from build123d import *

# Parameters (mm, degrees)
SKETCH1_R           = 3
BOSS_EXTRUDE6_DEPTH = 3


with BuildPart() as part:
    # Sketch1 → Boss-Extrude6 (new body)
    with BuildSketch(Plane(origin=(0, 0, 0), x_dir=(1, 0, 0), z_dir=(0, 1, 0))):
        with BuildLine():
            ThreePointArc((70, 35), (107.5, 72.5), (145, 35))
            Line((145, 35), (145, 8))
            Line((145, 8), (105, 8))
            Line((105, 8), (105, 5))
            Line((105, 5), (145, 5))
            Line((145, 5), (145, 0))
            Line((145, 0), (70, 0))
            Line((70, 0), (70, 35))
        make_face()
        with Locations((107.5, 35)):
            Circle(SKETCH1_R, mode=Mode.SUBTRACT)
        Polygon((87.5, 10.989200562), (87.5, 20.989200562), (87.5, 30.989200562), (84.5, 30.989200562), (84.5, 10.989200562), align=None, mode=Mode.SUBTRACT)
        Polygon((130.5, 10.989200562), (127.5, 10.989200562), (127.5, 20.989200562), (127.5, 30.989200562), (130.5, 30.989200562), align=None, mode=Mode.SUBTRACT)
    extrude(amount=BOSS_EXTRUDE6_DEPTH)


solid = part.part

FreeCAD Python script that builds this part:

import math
import FreeCAD as App
import Part
import Sketcher
from FreeCAD import Vector


def add_polygon(sketch, points):
    """Adds a closed chain of lines whose ends are joined by coincident constraints."""
    first, n = sketch.GeometryCount, len(points)
    for a, b in zip(points, points[1:] + points[:1]):
        sketch.addGeometry(Part.LineSegment(App.Vector(*a, 0), App.Vector(*b, 0)), False)
    for i in range(n):
        sketch.addConstraint(Sketcher.Constraint("Coincident", first + i, 2, first + (i + 1) % n, 1))

doc = App.newDocument("Part")
body = doc.addObject("PartDesign::Body", "Body")

sketch1 = body.newObject("Sketcher::SketchObject", "Sketch")
sketch1.AttachmentSupport = (doc.getObject("XZ_Plane"), [""])
sketch1.MapMode = "FlatFace"
sketch1.addGeometry(Part.ArcOfCircle(Part.Circle(Vector(107.5, -35, 0), Vector(0, 0, 1), 37.5), math.radians(180), math.radians(360)), False)
sketch1.addGeometry(Part.LineSegment(Vector(70, -35, 0), Vector(70, 0, 0)), False)
sketch1.addGeometry(Part.LineSegment(Vector(70, 0, 0), Vector(145, 0, 0)), False)
sketch1.addGeometry(Part.LineSegment(Vector(145, 0, 0), Vector(145, -5, 0)), False)
sketch1.addGeometry(Part.LineSegment(Vector(145, -5, 0), Vector(105, -5, 0)), False)
sketch1.addGeometry(Part.LineSegment(Vector(105, -5, 0), Vector(105, -8, 0)), False)
sketch1.addGeometry(Part.LineSegment(Vector(105, -8, 0), Vector(145, -8, 0)), False)
sketch1.addGeometry(Part.LineSegment(Vector(145, -8, 0), Vector(145, -35, 0)), False)
add_polygon(sketch1, [(130.5, -11), (127.5, -11), (127.5, -31), (130.5, -31)])
add_polygon(sketch1, [(87.5, -11), (84.5, -11), (84.5, -31), (87.5, -31)])
sketch1.addGeometry(Part.Circle(Vector(107.5, -35, 0), Vector(0, 0, 1), 3), False)
sketch1.addConstraint([
    Sketcher.Constraint("Tangent", 0, 1, 1, 1),
    Sketcher.Constraint("Coincident", 1, 2, 2, 1),
    Sketcher.Constraint("Coincident", 2, 2, 3, 1),
    Sketcher.Constraint("Coincident", 3, 2, 4, 1),
    Sketcher.Constraint("Coincident", 4, 2, 5, 1),
    Sketcher.Constraint("Coincident", 5, 2, 6, 1),
    Sketcher.Constraint("Coincident", 6, 2, 7, 1),
    Sketcher.Constraint("Tangent", 7, 2, 0, 2),
    Sketcher.Constraint("Vertical", 1),
    Sketcher.Constraint("Horizontal", 2),
    Sketcher.Constraint("Vertical", 3),
    Sketcher.Constraint("Horizontal", 4),
    Sketcher.Constraint("Vertical", 5),
    Sketcher.Constraint("Horizontal", 6),
    Sketcher.Constraint("Vertical", 7),
    Sketcher.Constraint("Horizontal", 8),
    Sketcher.Constraint("Vertical", 9),
    Sketcher.Constraint("Horizontal", 10),
    Sketcher.Constraint("Vertical", 11),
    Sketcher.Constraint("Horizontal", 12),
    Sketcher.Constraint("Vertical", 13),
    Sketcher.Constraint("Horizontal", 14),
    Sketcher.Constraint("Vertical", 15),
    Sketcher.Constraint("Coincident", 16, 3, 0, 3),
    Sketcher.Constraint("PointOnObject", 1, 2, -1),
    Sketcher.Constraint("Horizontal", 11, 2, 12, 2),
    Sketcher.Constraint("Horizontal", 10, 2, 13, 2),
    Sketcher.Constraint("Vertical", 3, 2, 6, 2),
    Sketcher.Constraint("Equal", 10, 12),
    Sketcher.Constraint("Equal", 14, 5),
    Sketcher.Constraint("Diameter", 16, 6.0),
    Sketcher.Constraint("Radius", 0, 37.5),
    Sketcher.Constraint("DistanceX", 4, 2, 4, 1, 40.0),
    Sketcher.Constraint("DistanceX", 8, 2, 8, 1, 3.0),
    Sketcher.Constraint("DistanceY", 1, 1, 1, 2, 35.0),
    Sketcher.Constraint("DistanceY", 3, 2, 3, 1, 5.0),
    Sketcher.Constraint("DistanceY", 9, 2, 9, 1, 20.0),
    Sketcher.Constraint("DistanceX", -1, 1, 0, 1, 70.0),
    Sketcher.Constraint("DistanceX", 0, 3, 9, 2, 20.0),
    Sketcher.Constraint("DistanceX", 12, 2, 0, 3, 23.0),
    Sketcher.Constraint("DistanceY", 8, 2, -1, 1, 10.989201),
])
pad1 = body.newObject("PartDesign::Pad", "Pad")
pad1.Profile = sketch1
pad1.Length = 3
pad1.Reversed = True

doc.recompute()
